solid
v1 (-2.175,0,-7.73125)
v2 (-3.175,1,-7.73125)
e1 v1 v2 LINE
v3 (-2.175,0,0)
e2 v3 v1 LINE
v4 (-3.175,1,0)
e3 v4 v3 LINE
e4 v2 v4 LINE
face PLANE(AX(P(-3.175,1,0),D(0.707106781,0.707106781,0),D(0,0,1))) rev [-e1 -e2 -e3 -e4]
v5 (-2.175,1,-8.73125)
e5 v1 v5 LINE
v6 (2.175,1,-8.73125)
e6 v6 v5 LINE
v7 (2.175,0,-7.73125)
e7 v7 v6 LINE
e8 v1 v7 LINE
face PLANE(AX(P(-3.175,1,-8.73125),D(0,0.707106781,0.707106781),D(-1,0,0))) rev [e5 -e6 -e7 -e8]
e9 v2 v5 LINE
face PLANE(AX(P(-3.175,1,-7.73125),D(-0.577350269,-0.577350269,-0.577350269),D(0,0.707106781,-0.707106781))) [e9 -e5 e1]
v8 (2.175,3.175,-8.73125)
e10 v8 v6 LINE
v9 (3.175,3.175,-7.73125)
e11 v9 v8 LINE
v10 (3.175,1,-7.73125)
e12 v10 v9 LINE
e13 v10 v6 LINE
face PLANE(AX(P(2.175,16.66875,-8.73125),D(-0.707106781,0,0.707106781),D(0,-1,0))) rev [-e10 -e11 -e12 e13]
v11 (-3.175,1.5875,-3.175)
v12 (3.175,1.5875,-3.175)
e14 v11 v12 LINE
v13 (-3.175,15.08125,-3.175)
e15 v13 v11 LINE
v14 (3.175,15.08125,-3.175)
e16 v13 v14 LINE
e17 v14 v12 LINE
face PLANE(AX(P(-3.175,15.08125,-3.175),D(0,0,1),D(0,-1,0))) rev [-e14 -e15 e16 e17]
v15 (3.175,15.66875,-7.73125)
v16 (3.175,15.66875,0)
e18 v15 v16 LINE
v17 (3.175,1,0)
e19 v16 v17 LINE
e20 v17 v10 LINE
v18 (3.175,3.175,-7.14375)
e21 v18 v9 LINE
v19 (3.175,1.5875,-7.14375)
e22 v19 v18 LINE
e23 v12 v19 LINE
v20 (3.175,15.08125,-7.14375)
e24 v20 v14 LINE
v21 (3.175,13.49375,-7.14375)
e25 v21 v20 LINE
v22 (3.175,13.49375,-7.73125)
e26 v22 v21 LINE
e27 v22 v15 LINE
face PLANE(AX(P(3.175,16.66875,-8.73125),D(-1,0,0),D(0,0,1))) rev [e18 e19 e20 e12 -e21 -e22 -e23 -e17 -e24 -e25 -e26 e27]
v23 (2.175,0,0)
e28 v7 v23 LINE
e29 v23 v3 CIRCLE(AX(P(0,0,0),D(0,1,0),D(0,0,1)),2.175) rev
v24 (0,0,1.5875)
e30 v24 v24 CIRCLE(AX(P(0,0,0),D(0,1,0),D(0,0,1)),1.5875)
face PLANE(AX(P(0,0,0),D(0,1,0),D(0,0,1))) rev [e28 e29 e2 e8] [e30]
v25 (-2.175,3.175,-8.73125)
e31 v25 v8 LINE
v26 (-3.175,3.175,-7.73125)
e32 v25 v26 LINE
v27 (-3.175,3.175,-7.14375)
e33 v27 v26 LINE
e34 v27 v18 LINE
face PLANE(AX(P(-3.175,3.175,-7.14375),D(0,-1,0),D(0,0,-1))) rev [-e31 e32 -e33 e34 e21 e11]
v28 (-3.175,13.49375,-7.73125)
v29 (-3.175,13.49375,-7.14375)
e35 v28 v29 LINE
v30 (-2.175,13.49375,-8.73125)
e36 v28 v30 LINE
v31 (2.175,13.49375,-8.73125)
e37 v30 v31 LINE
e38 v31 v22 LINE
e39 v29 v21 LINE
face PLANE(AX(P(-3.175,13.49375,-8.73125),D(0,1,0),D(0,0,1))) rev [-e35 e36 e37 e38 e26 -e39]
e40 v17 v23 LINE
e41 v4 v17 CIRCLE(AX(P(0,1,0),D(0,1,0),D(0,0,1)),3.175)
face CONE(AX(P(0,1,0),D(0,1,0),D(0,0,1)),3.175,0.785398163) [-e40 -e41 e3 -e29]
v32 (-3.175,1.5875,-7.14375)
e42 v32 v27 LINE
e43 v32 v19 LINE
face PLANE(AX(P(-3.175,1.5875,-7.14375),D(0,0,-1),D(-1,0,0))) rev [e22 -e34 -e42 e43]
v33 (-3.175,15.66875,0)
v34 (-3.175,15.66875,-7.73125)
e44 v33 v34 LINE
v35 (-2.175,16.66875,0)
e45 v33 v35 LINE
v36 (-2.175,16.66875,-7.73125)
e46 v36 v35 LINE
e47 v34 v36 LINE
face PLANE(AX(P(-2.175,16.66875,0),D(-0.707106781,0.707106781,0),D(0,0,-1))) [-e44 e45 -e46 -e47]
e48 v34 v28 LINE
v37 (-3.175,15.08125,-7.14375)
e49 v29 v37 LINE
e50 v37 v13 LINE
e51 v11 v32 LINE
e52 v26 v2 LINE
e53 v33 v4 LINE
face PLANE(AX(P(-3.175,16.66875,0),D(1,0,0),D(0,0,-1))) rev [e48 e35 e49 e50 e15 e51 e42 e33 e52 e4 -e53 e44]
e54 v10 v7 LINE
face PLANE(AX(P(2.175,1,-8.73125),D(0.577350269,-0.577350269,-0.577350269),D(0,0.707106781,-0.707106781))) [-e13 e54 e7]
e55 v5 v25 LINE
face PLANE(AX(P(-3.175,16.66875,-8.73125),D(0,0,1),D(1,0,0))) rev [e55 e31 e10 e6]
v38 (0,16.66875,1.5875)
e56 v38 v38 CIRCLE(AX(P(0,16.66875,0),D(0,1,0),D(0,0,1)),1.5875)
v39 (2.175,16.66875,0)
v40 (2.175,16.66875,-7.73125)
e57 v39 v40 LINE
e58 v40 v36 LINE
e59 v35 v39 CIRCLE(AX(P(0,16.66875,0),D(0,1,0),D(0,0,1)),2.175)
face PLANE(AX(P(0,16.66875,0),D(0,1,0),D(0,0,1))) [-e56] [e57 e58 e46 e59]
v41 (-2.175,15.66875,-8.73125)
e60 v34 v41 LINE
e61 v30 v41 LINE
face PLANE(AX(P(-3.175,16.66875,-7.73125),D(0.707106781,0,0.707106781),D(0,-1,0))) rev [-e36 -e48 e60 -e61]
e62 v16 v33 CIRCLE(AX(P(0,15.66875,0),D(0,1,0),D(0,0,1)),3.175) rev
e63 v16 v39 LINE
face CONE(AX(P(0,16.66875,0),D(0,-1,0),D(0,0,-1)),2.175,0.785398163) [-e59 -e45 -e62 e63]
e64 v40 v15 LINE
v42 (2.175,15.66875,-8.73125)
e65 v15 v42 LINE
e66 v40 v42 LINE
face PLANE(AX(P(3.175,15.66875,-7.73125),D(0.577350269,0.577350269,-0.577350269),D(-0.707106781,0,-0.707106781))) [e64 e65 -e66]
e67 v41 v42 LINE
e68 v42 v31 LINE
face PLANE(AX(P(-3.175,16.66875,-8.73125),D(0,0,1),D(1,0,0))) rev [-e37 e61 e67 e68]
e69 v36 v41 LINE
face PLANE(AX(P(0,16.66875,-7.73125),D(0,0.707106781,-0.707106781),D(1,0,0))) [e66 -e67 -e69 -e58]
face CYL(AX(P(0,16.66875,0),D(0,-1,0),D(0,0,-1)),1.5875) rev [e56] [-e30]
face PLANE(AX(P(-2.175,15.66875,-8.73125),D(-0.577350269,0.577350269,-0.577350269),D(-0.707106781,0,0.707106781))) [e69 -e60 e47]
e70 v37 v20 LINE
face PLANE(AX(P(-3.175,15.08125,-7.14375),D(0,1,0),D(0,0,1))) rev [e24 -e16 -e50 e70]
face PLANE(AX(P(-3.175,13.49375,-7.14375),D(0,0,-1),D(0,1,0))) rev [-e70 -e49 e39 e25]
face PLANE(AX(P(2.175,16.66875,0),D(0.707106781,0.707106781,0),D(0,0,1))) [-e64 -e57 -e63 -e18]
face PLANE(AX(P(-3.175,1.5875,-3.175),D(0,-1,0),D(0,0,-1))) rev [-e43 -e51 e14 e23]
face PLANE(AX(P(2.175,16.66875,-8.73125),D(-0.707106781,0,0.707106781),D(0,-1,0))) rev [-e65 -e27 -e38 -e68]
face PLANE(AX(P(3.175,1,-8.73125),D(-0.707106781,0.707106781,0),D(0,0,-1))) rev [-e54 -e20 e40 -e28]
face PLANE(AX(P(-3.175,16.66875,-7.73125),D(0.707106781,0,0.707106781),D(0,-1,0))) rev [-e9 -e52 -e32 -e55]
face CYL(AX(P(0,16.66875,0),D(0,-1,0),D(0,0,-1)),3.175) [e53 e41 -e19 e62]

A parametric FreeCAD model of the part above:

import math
import FreeCAD as App
import Part
import Sketcher
from FreeCAD import Vector
Q = App.Units.Quantity


def edges_at(feature, points):
    """Names of the edges that pass closest to the given points."""
    edges = feature.Shape.Edges
    near = lambda p: min(range(len(edges)), key=lambda i: edges[i].distToShape(Part.Vertex(*p))[0])
    return sorted({f"Edge{near(p) + 1}" for p in points})


def add_polygon(sketch, points):
    """Adds a closed chain of lines whose ends are joined by coincident constraints."""
    first, n = sketch.GeometryCount, len(points)
    for a, b in zip(points, points[1:] + points[:1]):
        sketch.addGeometry(Part.LineSegment(App.Vector(*a, 0), App.Vector(*b, 0)), False)
    for i in range(n):
        sketch.addConstraint(Sketcher.Constraint("Coincident", first + i, 2, first + (i + 1) % n, 1))

doc = App.newDocument("Part")
body = doc.addObject("PartDesign::Body", "Body")

sketch1 = body.newObject("Sketcher::SketchObject", "Sketch")
sketch1.AttachmentSupport = (doc.getObject("XZ_Plane"), [""])
sketch1.MapMode = "FlatFace"
sketch1.addGeometry(Part.LineSegment(Vector(-3.2, -8.7, 0), Vector(-3.2, 0, 0)), False)
sketch1.addGeometry(Part.ArcOfCircle(Part.Circle(Vector(0, 0, 0), Vector(0, 0, 1), 3.2), math.radians(0), math.radians(180)), False)
sketch1.addGeometry(Part.LineSegment(Vector(3.2, 0, 0), Vector(3.2, -8.7, 0)), False)
sketch1.addGeometry(Part.LineSegment(Vector(3.2, -8.7, 0), Vector(-3.2, -8.7, 0)), False)
sketch1.addGeometry(Part.Circle(Vector(0, 0, 0), Vector(0, 0, 1), 1.6), False)
sketch1.addConstraint(Sketcher.Constraint("Tangent", 0, 2, 1, 2))
sketch1.addConstraint(Sketcher.Constraint("Tangent", 1, 1, 2, 1))
sketch1.addConstraint(Sketcher.Constraint("Coincident", 2, 2, 3, 1))
sketch1.addConstraint(Sketcher.Constraint("Coincident", 3, 2, 0, 1))
sketch1.addConstraint(Sketcher.Constraint("Vertical", 0))
sketch1.addConstraint(Sketcher.Constraint("Vertical", 2))
sketch1.addConstraint(Sketcher.Constraint("Horizontal", 3))
sketch1.addConstraint(Sketcher.Constraint("Coincident", 1, 3, -1, 1))
sketch1.addConstraint(Sketcher.Constraint("Coincident", 4, 3, -1, 1))
sketch1.addConstraint(Sketcher.Constraint("Diameter", 4, Q("0.125 in")))
sketch1.addConstraint(Sketcher.Constraint("Radius", 1, Q("0.125 in")))
sketch1.addConstraint(Sketcher.Constraint("DistanceY", 0, 1, 0, 2, Q("0.34375 in")))
pad1 = body.newObject("PartDesign::Pad", "Pad")
pad1.Profile = sketch1
pad1.Length = Q("0.65625 in")
pad1.Reversed = True

sketch2 = body.newObject("Sketcher::SketchObject", "Sketch001")
sketch2.AttachmentSupport = (doc.getObject("YZ_Plane"), [""])
sketch2.MapMode = "FlatFace"
sketch2.AttachmentOffset = App.Placement(Vector(0, 0, 0.125 * 25.4), App.Rotation())
add_polygon(sketch2, [(13.5, -8.7), (13.5, -7.1), (15.1, -7.1), (15.1, -3.2), (1.6, -3.2), (1.6, -7.1), (3.2, -7.1), (3.2, -8.7)])
sketch2.addConstraint(Sketcher.Constraint("Vertical", 0))
sketch2.addConstraint(Sketcher.Constraint("Horizontal", 1))
sketch2.addConstraint(Sketcher.Constraint("Vertical", 2))
sketch2.addConstraint(Sketcher.Constraint("Horizontal", 3))
sketch2.addConstraint(Sketcher.Constraint("Vertical", 4))
sketch2.addConstraint(Sketcher.Constraint("Horizontal", 5))
sketch2.addConstraint(Sketcher.Constraint("Vertical", 6))
sketch2.addConstraint(Sketcher.Constraint("Horizontal", 7))
sketch2.addConstraint(Sketcher.Constraint("Horizontal", 1, 2, 4, 2))
sketch2.addConstraint(Sketcher.Constraint("Equal", 1, 5))
sketch2.addConstraint(Sketcher.Constraint("Equal", 5, 0))
sketch2.addConstraint(Sketcher.Constraint("DistanceX", 1, 1, 1, 2, Q("0.0625 in")))
sketch2.addConstraint(Sketcher.Constraint("DistanceX", 3, 2, 3, 1, Q("0.53125 in")))
sketch2.addConstraint(Sketcher.Constraint("DistanceY", 2, 1, 2, 2, Q("0.15625 in")))
sketch2.addConstraint(Sketcher.Constraint("DistanceX", -1, 1, 0, 2, Q("0.53125 in")))
sketch2.addConstraint(Sketcher.Constraint("DistanceY", 0, 2, -1, 1, Q("0.28125 in")))
pocket1 = body.newObject("PartDesign::Pocket", "Pocket")
pocket1.Profile = sketch2
pocket1.Type = "ThroughAll"
doc.recompute()

chamfer = body.newObject("PartDesign::Chamfer", "Chamfer")
chamfer.Base = (pocket1, edges_at(pocket1, [
    (0, 16.669, -8.731),
    (-3.175, 16.669, -4.366),
    (-3.175, 1.587, -8.731),
    (3.175, 1.587, -8.731),
    (0, 16.669, 3.175),
    (-3.175, 0, -4.366),
    (0, 0, -8.731),
    (3.175, 0, -4.366),
    (0, 0, 3.175),
    (3.175, 16.669, -4.366),
    (-3.175, 15.081, -8.731),
    (3.175, 15.081, -8.731),
]))
chamfer.Size = 1

doc.recompute()
